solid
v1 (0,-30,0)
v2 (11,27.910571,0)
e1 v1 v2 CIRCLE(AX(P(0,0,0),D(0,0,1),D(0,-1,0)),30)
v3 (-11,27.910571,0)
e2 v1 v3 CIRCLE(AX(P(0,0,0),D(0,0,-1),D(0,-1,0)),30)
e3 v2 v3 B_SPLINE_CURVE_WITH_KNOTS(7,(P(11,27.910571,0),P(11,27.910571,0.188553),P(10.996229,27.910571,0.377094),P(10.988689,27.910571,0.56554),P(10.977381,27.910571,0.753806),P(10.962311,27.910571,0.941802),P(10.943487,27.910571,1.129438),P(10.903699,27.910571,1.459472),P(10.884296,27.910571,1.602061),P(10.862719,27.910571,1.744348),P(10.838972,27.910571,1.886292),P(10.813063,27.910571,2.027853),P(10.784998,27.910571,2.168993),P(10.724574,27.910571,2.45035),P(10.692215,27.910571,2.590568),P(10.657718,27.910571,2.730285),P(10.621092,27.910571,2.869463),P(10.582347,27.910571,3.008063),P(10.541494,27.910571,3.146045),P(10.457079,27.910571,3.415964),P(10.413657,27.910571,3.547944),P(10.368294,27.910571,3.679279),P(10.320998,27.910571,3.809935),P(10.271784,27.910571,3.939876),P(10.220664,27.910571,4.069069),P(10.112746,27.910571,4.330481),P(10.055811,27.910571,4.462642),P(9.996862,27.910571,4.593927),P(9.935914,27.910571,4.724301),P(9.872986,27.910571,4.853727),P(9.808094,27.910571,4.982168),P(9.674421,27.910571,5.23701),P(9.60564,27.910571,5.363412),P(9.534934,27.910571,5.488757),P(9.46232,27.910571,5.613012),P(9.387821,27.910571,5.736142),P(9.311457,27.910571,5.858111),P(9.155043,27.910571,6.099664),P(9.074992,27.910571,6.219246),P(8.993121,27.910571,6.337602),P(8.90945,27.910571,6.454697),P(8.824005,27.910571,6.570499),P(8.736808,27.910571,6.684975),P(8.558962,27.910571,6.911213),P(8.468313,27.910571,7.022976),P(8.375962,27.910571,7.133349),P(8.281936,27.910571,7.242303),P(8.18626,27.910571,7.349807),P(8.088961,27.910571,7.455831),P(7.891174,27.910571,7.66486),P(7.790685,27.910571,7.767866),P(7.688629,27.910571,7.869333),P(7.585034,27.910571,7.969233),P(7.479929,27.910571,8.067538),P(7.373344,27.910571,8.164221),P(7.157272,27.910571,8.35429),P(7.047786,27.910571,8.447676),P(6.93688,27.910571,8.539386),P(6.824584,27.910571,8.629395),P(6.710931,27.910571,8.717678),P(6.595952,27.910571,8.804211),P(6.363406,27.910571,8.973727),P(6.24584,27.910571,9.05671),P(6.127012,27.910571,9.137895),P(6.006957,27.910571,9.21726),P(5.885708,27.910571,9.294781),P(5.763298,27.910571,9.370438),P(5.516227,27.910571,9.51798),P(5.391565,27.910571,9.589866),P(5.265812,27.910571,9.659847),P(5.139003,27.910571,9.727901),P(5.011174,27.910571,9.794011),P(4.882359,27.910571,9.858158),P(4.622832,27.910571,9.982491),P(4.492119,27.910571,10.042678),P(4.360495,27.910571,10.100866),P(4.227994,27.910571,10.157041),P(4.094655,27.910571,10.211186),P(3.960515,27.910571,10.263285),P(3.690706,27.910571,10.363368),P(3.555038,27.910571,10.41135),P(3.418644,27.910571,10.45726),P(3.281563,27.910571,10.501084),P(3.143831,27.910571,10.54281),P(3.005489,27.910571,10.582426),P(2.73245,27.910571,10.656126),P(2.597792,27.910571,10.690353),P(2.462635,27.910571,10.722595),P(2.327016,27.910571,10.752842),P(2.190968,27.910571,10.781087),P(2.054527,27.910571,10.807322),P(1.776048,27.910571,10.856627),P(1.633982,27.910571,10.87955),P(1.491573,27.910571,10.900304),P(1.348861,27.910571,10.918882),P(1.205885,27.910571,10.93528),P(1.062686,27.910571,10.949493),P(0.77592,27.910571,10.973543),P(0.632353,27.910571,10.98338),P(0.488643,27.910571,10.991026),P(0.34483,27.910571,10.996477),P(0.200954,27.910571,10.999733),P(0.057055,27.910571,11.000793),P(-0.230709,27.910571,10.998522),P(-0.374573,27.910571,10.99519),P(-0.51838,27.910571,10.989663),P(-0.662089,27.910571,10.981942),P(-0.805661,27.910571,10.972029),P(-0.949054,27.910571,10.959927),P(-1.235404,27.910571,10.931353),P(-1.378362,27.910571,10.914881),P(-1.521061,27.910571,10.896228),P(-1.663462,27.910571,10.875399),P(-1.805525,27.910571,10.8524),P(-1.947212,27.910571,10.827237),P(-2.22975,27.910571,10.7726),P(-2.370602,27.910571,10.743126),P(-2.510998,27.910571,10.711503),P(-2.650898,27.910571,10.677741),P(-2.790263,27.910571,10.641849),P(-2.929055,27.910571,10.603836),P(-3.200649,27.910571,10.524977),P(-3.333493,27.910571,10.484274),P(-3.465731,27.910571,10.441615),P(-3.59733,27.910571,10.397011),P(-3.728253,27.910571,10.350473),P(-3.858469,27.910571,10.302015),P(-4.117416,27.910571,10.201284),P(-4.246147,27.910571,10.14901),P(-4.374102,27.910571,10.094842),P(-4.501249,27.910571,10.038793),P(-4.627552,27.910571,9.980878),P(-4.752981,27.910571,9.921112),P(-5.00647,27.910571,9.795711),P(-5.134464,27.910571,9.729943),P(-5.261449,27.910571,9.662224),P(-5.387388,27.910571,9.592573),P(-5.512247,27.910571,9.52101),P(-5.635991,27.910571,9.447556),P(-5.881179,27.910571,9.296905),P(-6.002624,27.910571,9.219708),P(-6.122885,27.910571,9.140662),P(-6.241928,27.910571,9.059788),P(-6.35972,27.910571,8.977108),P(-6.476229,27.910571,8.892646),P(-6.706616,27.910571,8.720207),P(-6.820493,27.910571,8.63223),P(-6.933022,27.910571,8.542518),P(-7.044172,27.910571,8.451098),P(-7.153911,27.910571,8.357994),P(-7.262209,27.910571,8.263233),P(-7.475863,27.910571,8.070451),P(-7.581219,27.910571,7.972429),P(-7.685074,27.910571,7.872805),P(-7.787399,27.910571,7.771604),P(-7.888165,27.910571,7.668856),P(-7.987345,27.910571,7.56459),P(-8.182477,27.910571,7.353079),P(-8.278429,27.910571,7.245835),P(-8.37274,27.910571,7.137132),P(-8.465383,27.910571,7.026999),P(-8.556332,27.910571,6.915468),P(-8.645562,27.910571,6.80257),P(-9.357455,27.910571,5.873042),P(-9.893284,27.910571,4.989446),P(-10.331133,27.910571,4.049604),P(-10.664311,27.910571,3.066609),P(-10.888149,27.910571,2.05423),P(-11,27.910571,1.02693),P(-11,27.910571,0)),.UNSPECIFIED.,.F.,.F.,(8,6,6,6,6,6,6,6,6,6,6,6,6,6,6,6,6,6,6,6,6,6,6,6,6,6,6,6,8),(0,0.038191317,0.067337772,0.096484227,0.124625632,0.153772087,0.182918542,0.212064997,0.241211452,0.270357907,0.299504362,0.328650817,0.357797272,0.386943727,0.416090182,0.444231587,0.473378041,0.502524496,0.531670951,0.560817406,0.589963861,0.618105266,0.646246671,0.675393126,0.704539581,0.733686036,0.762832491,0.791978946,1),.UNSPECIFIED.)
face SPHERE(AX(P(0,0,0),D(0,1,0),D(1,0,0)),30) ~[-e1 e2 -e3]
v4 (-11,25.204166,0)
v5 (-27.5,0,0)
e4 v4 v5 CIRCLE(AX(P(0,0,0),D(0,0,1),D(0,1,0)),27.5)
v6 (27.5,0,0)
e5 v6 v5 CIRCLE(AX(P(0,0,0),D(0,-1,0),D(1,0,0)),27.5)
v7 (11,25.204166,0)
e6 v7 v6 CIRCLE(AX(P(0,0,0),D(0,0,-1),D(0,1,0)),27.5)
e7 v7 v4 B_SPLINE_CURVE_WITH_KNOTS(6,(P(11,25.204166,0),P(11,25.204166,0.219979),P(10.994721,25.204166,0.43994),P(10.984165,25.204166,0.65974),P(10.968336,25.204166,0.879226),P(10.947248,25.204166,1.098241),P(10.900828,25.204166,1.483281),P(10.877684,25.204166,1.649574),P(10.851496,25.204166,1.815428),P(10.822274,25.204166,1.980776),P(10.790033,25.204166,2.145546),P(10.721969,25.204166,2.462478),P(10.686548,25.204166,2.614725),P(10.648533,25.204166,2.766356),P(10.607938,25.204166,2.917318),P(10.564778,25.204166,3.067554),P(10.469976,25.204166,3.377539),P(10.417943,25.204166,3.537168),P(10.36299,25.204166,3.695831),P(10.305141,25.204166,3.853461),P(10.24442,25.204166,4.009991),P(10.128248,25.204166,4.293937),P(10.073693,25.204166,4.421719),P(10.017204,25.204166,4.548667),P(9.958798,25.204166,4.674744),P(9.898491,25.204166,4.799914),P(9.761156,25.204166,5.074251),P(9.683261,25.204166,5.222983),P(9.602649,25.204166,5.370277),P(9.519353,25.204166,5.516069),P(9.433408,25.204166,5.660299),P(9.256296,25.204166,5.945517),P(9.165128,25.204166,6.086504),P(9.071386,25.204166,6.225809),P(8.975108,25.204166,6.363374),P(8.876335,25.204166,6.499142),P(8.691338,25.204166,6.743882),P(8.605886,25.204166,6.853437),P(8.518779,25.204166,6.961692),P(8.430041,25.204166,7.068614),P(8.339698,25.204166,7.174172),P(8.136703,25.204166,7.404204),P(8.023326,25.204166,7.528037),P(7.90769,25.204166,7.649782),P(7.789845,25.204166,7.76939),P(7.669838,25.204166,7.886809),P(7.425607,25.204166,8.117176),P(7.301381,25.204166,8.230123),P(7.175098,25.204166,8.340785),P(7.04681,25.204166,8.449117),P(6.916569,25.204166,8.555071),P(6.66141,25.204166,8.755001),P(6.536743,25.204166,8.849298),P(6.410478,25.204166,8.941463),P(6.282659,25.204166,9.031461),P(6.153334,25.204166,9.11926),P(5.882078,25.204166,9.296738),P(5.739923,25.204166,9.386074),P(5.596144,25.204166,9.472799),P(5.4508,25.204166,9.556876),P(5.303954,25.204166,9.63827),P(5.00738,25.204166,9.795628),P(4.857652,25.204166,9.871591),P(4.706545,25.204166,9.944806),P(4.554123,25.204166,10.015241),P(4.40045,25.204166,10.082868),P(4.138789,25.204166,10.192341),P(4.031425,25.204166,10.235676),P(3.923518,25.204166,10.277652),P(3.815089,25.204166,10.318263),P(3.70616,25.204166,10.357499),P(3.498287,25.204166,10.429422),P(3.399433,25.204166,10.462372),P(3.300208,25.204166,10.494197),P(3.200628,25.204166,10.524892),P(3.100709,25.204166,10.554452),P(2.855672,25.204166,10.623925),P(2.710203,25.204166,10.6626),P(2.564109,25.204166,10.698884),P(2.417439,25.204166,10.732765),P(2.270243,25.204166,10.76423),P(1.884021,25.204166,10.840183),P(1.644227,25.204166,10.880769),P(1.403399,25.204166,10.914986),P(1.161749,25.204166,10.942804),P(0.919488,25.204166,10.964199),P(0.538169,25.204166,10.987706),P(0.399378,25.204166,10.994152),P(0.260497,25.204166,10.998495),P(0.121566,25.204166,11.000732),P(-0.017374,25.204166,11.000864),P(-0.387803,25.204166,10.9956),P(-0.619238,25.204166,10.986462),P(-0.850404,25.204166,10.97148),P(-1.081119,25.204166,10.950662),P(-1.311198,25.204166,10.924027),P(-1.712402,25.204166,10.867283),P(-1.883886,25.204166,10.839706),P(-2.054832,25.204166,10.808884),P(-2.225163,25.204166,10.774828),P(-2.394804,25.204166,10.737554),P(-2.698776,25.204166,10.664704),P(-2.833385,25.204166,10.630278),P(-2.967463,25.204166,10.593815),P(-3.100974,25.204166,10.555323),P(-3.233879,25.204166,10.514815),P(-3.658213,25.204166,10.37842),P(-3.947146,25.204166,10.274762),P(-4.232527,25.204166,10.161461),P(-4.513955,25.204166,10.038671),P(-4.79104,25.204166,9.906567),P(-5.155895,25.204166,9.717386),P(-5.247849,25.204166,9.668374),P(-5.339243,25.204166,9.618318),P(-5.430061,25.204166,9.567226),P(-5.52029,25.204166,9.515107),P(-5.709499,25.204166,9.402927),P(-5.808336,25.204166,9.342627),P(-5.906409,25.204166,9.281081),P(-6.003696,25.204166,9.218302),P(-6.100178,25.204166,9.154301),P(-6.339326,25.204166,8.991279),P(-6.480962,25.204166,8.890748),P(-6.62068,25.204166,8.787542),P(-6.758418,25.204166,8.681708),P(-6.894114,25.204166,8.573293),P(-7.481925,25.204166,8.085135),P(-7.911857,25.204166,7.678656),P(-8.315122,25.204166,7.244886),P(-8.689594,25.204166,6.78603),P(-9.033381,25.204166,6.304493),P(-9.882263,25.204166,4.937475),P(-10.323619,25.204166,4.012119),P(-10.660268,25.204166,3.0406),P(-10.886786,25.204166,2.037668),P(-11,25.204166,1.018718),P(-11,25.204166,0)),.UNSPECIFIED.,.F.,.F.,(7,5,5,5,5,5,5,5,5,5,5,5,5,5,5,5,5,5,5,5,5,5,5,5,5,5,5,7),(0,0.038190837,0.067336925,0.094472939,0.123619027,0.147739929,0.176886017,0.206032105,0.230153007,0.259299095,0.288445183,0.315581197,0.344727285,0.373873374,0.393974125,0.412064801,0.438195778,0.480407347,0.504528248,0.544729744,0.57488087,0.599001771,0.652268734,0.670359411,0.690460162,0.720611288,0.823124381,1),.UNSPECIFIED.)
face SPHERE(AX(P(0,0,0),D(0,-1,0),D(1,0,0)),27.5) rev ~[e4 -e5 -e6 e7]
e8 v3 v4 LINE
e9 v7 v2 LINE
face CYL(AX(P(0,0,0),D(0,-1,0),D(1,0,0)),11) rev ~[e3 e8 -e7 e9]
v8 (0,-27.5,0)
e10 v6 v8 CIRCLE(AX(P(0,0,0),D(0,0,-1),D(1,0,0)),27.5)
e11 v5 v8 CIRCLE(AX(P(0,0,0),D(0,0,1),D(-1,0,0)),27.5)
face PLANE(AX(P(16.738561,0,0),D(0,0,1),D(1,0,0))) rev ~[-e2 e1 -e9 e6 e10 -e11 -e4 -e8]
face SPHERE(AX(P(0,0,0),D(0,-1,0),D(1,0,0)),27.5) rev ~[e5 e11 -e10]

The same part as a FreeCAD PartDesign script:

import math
import FreeCAD as App
import Part
import Sketcher

V = App.Vector

doc = App.newDocument("Part")
body = doc.addObject("PartDesign::Body", "Body")

# Sketch on XY plane
sketch1 = body.newObject("Sketcher::SketchObject", "Sketch")
sketch1.AttachmentSupport = (doc.getObject("XY_Plane"), [""])
sketch1.MapMode = "FlatFace"
sketch1.addGeometry([
    Part.ArcOfCircle(Part.Circle(V(0, 0, 0), V(0, 0, 1), 30), math.radians(-90), math.radians(90)),  # 0
    Part.LineSegment(V(0, 30, 0), V(0, 27.5, 0)),  # 1
    Part.ArcOfCircle(Part.Circle(V(0, 0, 0), V(0, 0, 1), 27.5), math.radians(0), math.radians(90)),  # 2
    Part.ArcOfCircle(Part.Circle(V(0, 0, 0), V(0, 0, 1), 27.5), math.radians(-90), math.radians(0)),  # 3
    Part.LineSegment(V(0, -27.5, 0), V(0, -30, 0)),  # 4
], False)
sketch1.addConstraint([
    Sketcher.Constraint("Coincident", 0, 2, 1, 1),
    Sketcher.Constraint("Coincident", 1, 2, 2, 2),
    Sketcher.Constraint("Tangent", 2, 1, 3, 2),
    Sketcher.Constraint("Coincident", 3, 1, 4, 1),
    Sketcher.Constraint("Coincident", 4, 2, 0, 1),
    Sketcher.Constraint("Vertical", 1),
    Sketcher.Constraint("Vertical", 4),
    Sketcher.Constraint("Coincident", 0, 3, -1, 1),
    Sketcher.Constraint("Coincident", 2, 3, -1, 1),
    Sketcher.Constraint("Equal", 2, 3),
    Sketcher.Constraint("PointOnObject", 0, 2, -2),
    Sketcher.Constraint("PointOnObject", 2, 1, -1),
    Sketcher.Constraint("PointOnObject", 3, 1, -2),
    Sketcher.Constraint("Radius", 0, 30.0),
    Sketcher.Constraint("Radius", 2, 27.5),
])
revolution = body.newObject("PartDesign::Revolution", "Revolution")
revolution.Profile = sketch1
revolution.ReferenceAxis = (sketch1, ["V_Axis"])
revolution.Angle = 180
revolution.Reversed = True

# Sketch on XZ plane
sketch2 = body.newObject("Sketcher::SketchObject", "Sketch001")
sketch2.AttachmentSupport = (doc.getObject("XZ_Plane"), [""])
sketch2.MapMode = "FlatFace"
sketch2.addGeometry(Part.Circle(V(0, 0, 0), V(0, 0, 1), 11), False)
sketch2.addConstraint([
    Sketcher.Constraint("Coincident", 0, 3, -1, 1),
    Sketcher.Constraint("Diameter", 0, 22.0),
])
pocket1 = body.newObject("PartDesign::Pocket", "Pocket")
pocket1.Profile = sketch2
pocket1.Length = 60

doc.recompute()
